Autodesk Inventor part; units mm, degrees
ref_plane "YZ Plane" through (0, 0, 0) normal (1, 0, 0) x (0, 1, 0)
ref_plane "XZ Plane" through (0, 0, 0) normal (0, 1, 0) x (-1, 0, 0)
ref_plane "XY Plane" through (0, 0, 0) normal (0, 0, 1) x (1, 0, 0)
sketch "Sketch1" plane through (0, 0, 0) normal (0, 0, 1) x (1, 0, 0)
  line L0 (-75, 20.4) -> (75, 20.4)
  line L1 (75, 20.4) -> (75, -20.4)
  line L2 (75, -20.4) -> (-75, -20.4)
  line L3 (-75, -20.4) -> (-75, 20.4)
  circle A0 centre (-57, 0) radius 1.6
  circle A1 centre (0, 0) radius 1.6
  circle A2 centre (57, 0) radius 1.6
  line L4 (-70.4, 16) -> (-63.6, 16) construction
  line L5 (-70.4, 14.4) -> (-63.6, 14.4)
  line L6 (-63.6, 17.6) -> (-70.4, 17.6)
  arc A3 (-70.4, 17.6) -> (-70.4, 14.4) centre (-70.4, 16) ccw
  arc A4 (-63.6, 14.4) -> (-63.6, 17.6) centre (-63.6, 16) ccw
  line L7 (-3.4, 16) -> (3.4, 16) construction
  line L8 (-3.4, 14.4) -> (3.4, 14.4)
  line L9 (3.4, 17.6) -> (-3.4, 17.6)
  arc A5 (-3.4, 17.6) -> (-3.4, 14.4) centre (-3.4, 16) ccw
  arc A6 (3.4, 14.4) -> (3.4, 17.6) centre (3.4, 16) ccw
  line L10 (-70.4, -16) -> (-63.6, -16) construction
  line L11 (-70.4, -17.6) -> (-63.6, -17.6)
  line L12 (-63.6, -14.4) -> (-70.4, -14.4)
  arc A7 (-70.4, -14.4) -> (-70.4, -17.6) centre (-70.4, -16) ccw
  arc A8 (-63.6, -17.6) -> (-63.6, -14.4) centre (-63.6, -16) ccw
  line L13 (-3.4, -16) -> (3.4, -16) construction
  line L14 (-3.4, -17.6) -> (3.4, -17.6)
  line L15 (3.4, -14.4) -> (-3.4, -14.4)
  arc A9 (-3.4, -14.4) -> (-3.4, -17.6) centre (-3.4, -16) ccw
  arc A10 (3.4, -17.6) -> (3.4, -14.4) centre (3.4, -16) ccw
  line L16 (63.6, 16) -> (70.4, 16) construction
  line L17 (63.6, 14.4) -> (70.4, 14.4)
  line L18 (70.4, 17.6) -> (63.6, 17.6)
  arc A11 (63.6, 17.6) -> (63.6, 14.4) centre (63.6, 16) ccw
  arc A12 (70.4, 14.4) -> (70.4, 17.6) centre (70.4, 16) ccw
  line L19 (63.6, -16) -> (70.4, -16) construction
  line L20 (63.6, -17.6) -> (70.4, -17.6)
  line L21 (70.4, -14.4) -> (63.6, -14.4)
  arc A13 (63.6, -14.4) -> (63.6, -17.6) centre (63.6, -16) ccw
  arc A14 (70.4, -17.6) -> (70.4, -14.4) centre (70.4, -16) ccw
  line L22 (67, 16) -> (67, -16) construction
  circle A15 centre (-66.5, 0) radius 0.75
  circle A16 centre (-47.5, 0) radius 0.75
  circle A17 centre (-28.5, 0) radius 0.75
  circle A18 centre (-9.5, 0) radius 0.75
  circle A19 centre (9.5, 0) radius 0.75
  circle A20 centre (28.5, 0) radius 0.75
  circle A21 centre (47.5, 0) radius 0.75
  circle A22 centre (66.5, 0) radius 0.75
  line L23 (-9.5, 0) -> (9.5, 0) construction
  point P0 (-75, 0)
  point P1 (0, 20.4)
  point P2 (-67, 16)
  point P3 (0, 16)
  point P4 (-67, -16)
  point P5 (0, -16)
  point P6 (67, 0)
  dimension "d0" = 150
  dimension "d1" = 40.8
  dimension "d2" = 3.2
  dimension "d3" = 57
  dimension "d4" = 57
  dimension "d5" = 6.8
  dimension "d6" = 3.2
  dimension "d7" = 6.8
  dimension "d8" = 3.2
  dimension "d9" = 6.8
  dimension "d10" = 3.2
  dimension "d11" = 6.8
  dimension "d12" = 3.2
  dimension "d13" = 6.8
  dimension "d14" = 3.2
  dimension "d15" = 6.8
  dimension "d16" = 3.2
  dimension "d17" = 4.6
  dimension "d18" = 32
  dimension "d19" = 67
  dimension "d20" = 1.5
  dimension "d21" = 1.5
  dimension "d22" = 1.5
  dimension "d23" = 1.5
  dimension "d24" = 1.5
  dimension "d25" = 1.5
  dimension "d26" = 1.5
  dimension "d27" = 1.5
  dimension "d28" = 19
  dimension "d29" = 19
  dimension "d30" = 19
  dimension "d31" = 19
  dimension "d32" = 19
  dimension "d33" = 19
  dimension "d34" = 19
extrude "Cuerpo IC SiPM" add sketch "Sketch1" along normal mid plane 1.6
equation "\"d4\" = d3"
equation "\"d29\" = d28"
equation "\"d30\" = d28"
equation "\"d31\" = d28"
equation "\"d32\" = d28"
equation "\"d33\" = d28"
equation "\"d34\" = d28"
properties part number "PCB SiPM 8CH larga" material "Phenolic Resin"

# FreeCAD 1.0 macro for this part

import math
import FreeCAD as App
import Part
import Sketcher
from FreeCAD import Vector

doc = App.newDocument("Part")
params = doc.addObject("Spreadsheet::Sheet", "Params")
for row, (alias, value) in enumerate([
    ("sketch1_diameter", "1.5 mm"),
    ("sketch1_diameter2", "3.2 mm"),
    ("sketch1_width", "150 mm"),
    ("sketch1_width2", "6.8 mm"),
    ("sketch1_height", "40.8 mm"),
    ("pad1_length", "1.6 mm"),
], start=1):
    params.set(f"A{row}", alias)
    params.set(f"B{row}", "=" + value)
    params.setAlias(f"B{row}", alias)

body = doc.addObject("PartDesign::Body", "Body")

# Sketch on XY plane
sketch1 = body.newObject("Sketcher::SketchObject", "Sketch")
sketch1.AttachmentSupport = (doc.getObject("XY_Plane"), [""])
sketch1.MapMode = "FlatFace"
sketch1.addGeometry(Part.LineSegment(Vector(75, 20.4, 0), Vector(-75, 20.4, 0)), False)
sketch1.addGeometry(Part.LineSegment(Vector(-75, 20.4, 0), Vector(-75, -20.4, 0)), False)
sketch1.addGeometry(Part.LineSegment(Vector(-75, -20.4, 0), Vector(75, -20.4, 0)), False)
sketch1.addGeometry(Part.LineSegment(Vector(75, -20.4, 0), Vector(75, 20.4, 0)), False)
sketch1.addGeometry(Part.LineSegment(Vector(-63.6, -17.6, 0), Vector(-70.4, -17.6, 0)), False)
sketch1.addGeometry(Part.ArcOfCircle(Part.Circle(Vector(-70.4, -16, 0), Vector(0, 0, 1), 1.6), math.radians(90), math.radians(270)), False)
sketch1.addGeometry(Part.LineSegment(Vector(-70.4, -14.4, 0), Vector(-63.6, -14.4, 0)), False)
sketch1.addGeometry(Part.ArcOfCircle(Part.Circle(Vector(-63.6, -16, 0), Vector(0, 0, 1), 1.6), math.radians(-90), math.radians(90)), False)
sketch1.addGeometry(Part.LineSegment(Vector(3.4, -17.6, 0), Vector(-3.4, -17.6, 0)), False)
sketch1.addGeometry(Part.ArcOfCircle(Part.Circle(Vector(-3.4, -16, 0), Vector(0, 0, 1), 1.6), math.radians(90), math.radians(270)), False)
sketch1.addGeometry(Part.LineSegment(Vector(-3.4, -14.4, 0), Vector(3.4, -14.4, 0)), False)
sketch1.addGeometry(Part.ArcOfCircle(Part.Circle(Vector(3.4, -16, 0), Vector(0, 0, 1), 1.6), math.radians(-90), math.radians(90)), False)
sketch1.addGeometry(Part.LineSegment(Vector(70.4, -17.6, 0), Vector(63.6, -17.6, 0)), False)
sketch1.addGeometry(Part.ArcOfCircle(Part.Circle(Vector(63.6, -16, 0), Vector(0, 0, 1), 1.6), math.radians(90), math.radians(270)), False)
sketch1.addGeometry(Part.LineSegment(Vector(63.6, -14.4, 0), Vector(70.4, -14.4, 0)), False)
sketch1.addGeometry(Part.ArcOfCircle(Part.Circle(Vector(70.4, -16, 0), Vector(0, 0, 1), 1.6), math.radians(-90), math.radians(90)), False)
sketch1.addGeometry(Part.Circle(Vector(-66.5, 0, 0), Vector(0, 0, 1), 0.8), False)
sketch1.addGeometry(Part.Circle(Vector(-57, 0, 0), Vector(0, 0, 1), 1.6), False)
sketch1.addGeometry(Part.Circle(Vector(-47.5, 0, 0), Vector(0, 0, 1), 0.8), False)
sketch1.addGeometry(Part.Circle(Vector(-28.5, 0, 0), Vector(0, 0, 1), 0.8), False)
sketch1.addGeometry(Part.Circle(Vector(-9.5, 0, 0), Vector(0, 0, 1), 0.8), False)
sketch1.addGeometry(Part.LineSegment(Vector(-63.6, 14.4, 0), Vector(-70.4, 14.4, 0)), False)
sketch1.addGeometry(Part.ArcOfCircle(Part.Circle(Vector(-70.4, 16, 0), Vector(0, 0, 1), 1.6), math.radians(90), math.radians(270)), False)
sketch1.addGeometry(Part.LineSegment(Vector(-70.4, 17.6, 0), Vector(-63.6, 17.6, 0)), False)
sketch1.addGeometry(Part.ArcOfCircle(Part.Circle(Vector(-63.6, 16, 0), Vector(0, 0, 1), 1.6), math.radians(-90), math.radians(90)), False)
sketch1.addGeometry(Part.Circle(Vector(0, 0, 0), Vector(0, 0, 1), 1.6), False)
sketch1.addGeometry(Part.Circle(Vector(9.5, 0, 0), Vector(0, 0, 1), 0.8), False)
sketch1.addGeometry(Part.Circle(Vector(28.5, 0, 0), Vector(0, 0, 1), 0.8), False)
sketch1.addGeometry(Part.Circle(Vector(47.5, 0, 0), Vector(0, 0, 1), 0.8), False)
sketch1.addGeometry(Part.Circle(Vector(57, 0, 0), Vector(0, 0, 1), 1.6), False)
sketch1.addGeometry(Part.Circle(Vector(66.5, 0, 0), Vector(0, 0, 1), 0.8), False)
sketch1.addGeometry(Part.LineSegment(Vector(3.4, 14.4, 0), Vector(-3.4, 14.4, 0)), False)
sketch1.addGeometry(Part.ArcOfCircle(Part.Circle(Vector(-3.4, 16, 0), Vector(0, 0, 1), 1.6), math.radians(90), math.radians(270)), False)
sketch1.addGeometry(Part.LineSegment(Vector(-3.4, 17.6, 0), Vector(3.4, 17.6, 0)), False)
sketch1.addGeometry(Part.ArcOfCircle(Part.Circle(Vector(3.4, 16, 0), Vector(0, 0, 1), 1.6), math.radians(-90), math.radians(90)), False)
sketch1.addGeometry(Part.LineSegment(Vector(70.4, 14.4, 0), Vector(63.6, 14.4, 0)), False)
sketch1.addGeometry(Part.ArcOfCircle(Part.Circle(Vector(63.6, 16, 0), Vector(0, 0, 1), 1.6), math.radians(90), math.radians(270)), False)
sketch1.addGeometry(Part.LineSegment(Vector(63.6, 17.6, 0), Vector(70.4, 17.6, 0)), False)
sketch1.addGeometry(Part.ArcOfCircle(Part.Circle(Vector(70.4, 16, 0), Vector(0, 0, 1), 1.6), math.radians(-90), math.radians(90)), False)
sketch1.addConstraint(Sketcher.Constraint("Coincident", 0, 2, 1, 1))
sketch1.addConstraint(Sketcher.Constraint("Coincident", 1, 2, 2, 1))
sketch1.addConstraint(Sketcher.Constraint("Coincident", 2, 2, 3, 1))
sketch1.addConstraint(Sketcher.Constraint("Coincident", 3, 2, 0, 1))
sketch1.addConstraint(Sketcher.Constraint("Tangent", 4, 2, 5, 2))
sketch1.addConstraint(Sketcher.Constraint("Tangent", 5, 1, 6, 1))
sketch1.addConstraint(Sketcher.Constraint("Tangent", 6, 2, 7, 2))
sketch1.addConstraint(Sketcher.Constraint("Tangent", 7, 1, 4, 1))
sketch1.addConstraint(Sketcher.Constraint("Tangent", 8, 2, 9, 2))
sketch1.addConstraint(Sketcher.Constraint("Tangent", 9, 1, 10, 1))
sketch1.addConstraint(Sketcher.Constraint("Tangent", 10, 2, 11, 2))
sketch1.addConstraint(Sketcher.Constraint("Tangent", 11, 1, 8, 1))
sketch1.addConstraint(Sketcher.Constraint("Tangent", 12, 2, 13, 2))
sketch1.addConstraint(Sketcher.Constraint("Tangent", 13, 1, 14, 1))
sketch1.addConstraint(Sketcher.Constraint("Tangent", 14, 2, 15, 2))
sketch1.addConstraint(Sketcher.Constraint("Tangent", 15, 1, 12, 1))
sketch1.addConstraint(Sketcher.Constraint("Tangent", 21, 2, 22, 2))
sketch1.addConstraint(Sketcher.Constraint("Tangent", 22, 1, 23, 1))
sketch1.addConstraint(Sketcher.Constraint("Tangent", 23, 2, 24, 2))
sketch1.addConstraint(Sketcher.Constraint("Tangent", 24, 1, 21, 1))
sketch1.addConstraint(Sketcher.Constraint("Tangent", 31, 2, 32, 2))
sketch1.addConstraint(Sketcher.Constraint("Tangent", 32, 1, 33, 1))
sketch1.addConstraint(Sketcher.Constraint("Tangent", 33, 2, 34, 2))
sketch1.addConstraint(Sketcher.Constraint("Tangent", 34, 1, 31, 1))
sketch1.addConstraint(Sketcher.Constraint("Tangent", 35, 2, 36, 2))
sketch1.addConstraint(Sketcher.Constraint("Tangent", 36, 1, 37, 1))
sketch1.addConstraint(Sketcher.Constraint("Tangent", 37, 2, 38, 2))
sketch1.addConstraint(Sketcher.Constraint("Tangent", 38, 1, 35, 1))
sketch1.addConstraint(Sketcher.Constraint("Horizontal", 0))
sketch1.addConstraint(Sketcher.Constraint("Vertical", 1))
sketch1.addConstraint(Sketcher.Constraint("Horizontal", 2))
sketch1.addConstraint(Sketcher.Constraint("Vertical", 3))
sketch1.addConstraint(Sketcher.Constraint("Horizontal", 4))
sketch1.addConstraint(Sketcher.Constraint("Horizontal", 6))
sketch1.addConstraint(Sketcher.Constraint("Horizontal", 8))
sketch1.addConstraint(Sketcher.Constraint("Horizontal", 10))
sketch1.addConstraint(Sketcher.Constraint("Horizontal", 12))
sketch1.addConstraint(Sketcher.Constraint("Horizontal", 14))
sketch1.addConstraint(Sketcher.Constraint("Horizontal", 21))
sketch1.addConstraint(Sketcher.Constraint("Horizontal", 23))
sketch1.addConstraint(Sketcher.Constraint("Horizontal", 31))
sketch1.addConstraint(Sketcher.Constraint("Horizontal", 33))
sketch1.addConstraint(Sketcher.Constraint("Horizontal", 35))
sketch1.addConstraint(Sketcher.Constraint("Horizontal", 37))
sketch1.addConstraint(Sketcher.Constraint("Coincident", 25, 3, -1, 1))
sketch1.addConstraint(Sketcher.Constraint("Equal", 7, 9))
sketch1.addConstraint(Sketcher.Constraint("Equal", 11, 13))
sketch1.addConstraint(Sketcher.Constraint("Equal", 15, 17))
sketch1.addConstraint(Sketcher.Constraint("Equal", 16, 18))
sketch1.addConstraint(Sketcher.Constraint("Equal", 18, 19))
sketch1.addConstraint(Sketcher.Constraint("Equal", 19, 20))
sketch1.addConstraint(Sketcher.Constraint("Equal", 17, 22))
sketch1.addConstraint(Sketcher.Constraint("Equal", 24, 25))
sketch1.addConstraint(Sketcher.Constraint("Equal", 20, 26))
sketch1.addConstraint(Sketcher.Constraint("Equal", 26, 27))
sketch1.addConstraint(Sketcher.Constraint("Equal", 27, 28))
sketch1.addConstraint(Sketcher.Constraint("Equal", 25, 29))
sketch1.addConstraint(Sketcher.Constraint("Equal", 28, 30))
sketch1.addConstraint(Sketcher.Constraint("Equal", 29, 32))
sketch1.addConstraint(Sketcher.Constraint("Equal", 34, 36))
sketch1.addConstraint(Sketcher.Constraint("Symmetric", 15, 3, 22, 3, -1, 1))
sketch1.addConstraint(Sketcher.Constraint("Symmetric", 20, 3, 26, 3, -1, 1))
sketch1.addConstraint(Sketcher.Constraint("Symmetric", 19, 3, 27, 3, -1, 1))
sketch1.addConstraint(Sketcher.Constraint("Symmetric", 18, 3, 28, 3, -1, 1))
sketch1.addConstraint(Sketcher.Constraint("Symmetric", 17, 3, 29, 3, -1, 1))
sketch1.addConstraint(Sketcher.Constraint("Symmetric", 16, 3, 30, 3, -1, 1))
sketch1.addConstraint(Sketcher.Constraint("Symmetric", 11, 3, 32, 3, -1, 1))
sketch1.addConstraint(Sketcher.Constraint("Symmetric", 7, 3, 36, 3, -1, 1))
sketch1.addConstraint(Sketcher.Constraint("Symmetric", 0, 2, 2, 2, -1, 1))
sketch1.addConstraint(Sketcher.Constraint("Symmetric", 7, 3, 13, 3, -2))
sketch1.addConstraint(Sketcher.Constraint("PointOnObject", 16, 3, -1))
sketch1.addConstraint(Sketcher.Constraint("PointOnObject", 17, 3, -1))
sketch1.addConstraint(Sketcher.Constraint("PointOnObject", 18, 3, -1))
sketch1.addConstraint(Sketcher.Constraint("PointOnObject", 19, 3, -1))
sketch1.addConstraint(Sketcher.Constraint("PointOnObject", 20, 3, -1))
sketch1.addConstraint(Sketcher.Constraint("Horizontal", 7, 3, 9, 3))
sketch1.addConstraint(Sketcher.Constraint("Vertical", 5, 3, 22, 3))
sketch1.addConstraint(Sketcher.Constraint("Vertical", 7, 3, 24, 3))
sketch1.addConstraint(Sketcher.Constraint("Vertical", 9, 3, 32, 3))
sketch1.addConstraint(Sketcher.Constraint("Vertical", 11, 3, 34, 3))
sketch1.addConstraint(Sketcher.Constraint("Vertical", 15, 3, 38, 3))
sketch1.addConstraint(Sketcher.Constraint("Equal", 6, 8))
sketch1.addConstraint(Sketcher.Constraint("Diameter", 16, 1.5))
sketch1.addConstraint(Sketcher.Constraint("Diameter", 17, 3.2))
sketch1.addConstraint(Sketcher.Constraint("DistanceX", 0, 2, 0, 1, 150.0))
sketch1.addConstraint(Sketcher.Constraint("DistanceX", 4, 2, 4, 1, 6.8))
sketch1.addConstraint(Sketcher.Constraint("DistanceY", 1, 2, 1, 1, 40.8))
sketch1.addConstraint(Sketcher.Constraint("DistanceX", 17, 3, -1, 1, 57.0))
sketch1.addConstraint(Sketcher.Constraint("DistanceX", 5, 3, 9, 3, 67.0))
sketch1.addConstraint(Sketcher.Constraint("DistanceX", 16, 3, 18, 3, 19.0))
sketch1.addConstraint(Sketcher.Constraint("DistanceX", 18, 3, 19, 3, 19.0))
sketch1.addConstraint(Sketcher.Constraint("DistanceX", 19, 3, 20, 3, 19.0))
sketch1.addConstraint(Sketcher.Constraint("DistanceY", 5, 3, 22, 3, 32.0))
sketch1.addConstraint(Sketcher.Constraint("DistanceX", 20, 3, 26, 3, 19.0))
sketch1.setExpression("Constraints[82]", "Params.sketch1_diameter")
sketch1.setExpression("Constraints[83]", "Params.sketch1_diameter2")
sketch1.setExpression("Constraints[84]", "Params.sketch1_width")
sketch1.setExpression("Constraints[85]", "Params.sketch1_width2")
sketch1.setExpression("Constraints[86]", "Params.sketch1_height")
pad1 = body.newObject("PartDesign::Pad", "Pad")
pad1.Profile = sketch1
pad1.setExpression("Length", "Params.pad1_length")
pad1.Midplane = True

doc.recompute()
